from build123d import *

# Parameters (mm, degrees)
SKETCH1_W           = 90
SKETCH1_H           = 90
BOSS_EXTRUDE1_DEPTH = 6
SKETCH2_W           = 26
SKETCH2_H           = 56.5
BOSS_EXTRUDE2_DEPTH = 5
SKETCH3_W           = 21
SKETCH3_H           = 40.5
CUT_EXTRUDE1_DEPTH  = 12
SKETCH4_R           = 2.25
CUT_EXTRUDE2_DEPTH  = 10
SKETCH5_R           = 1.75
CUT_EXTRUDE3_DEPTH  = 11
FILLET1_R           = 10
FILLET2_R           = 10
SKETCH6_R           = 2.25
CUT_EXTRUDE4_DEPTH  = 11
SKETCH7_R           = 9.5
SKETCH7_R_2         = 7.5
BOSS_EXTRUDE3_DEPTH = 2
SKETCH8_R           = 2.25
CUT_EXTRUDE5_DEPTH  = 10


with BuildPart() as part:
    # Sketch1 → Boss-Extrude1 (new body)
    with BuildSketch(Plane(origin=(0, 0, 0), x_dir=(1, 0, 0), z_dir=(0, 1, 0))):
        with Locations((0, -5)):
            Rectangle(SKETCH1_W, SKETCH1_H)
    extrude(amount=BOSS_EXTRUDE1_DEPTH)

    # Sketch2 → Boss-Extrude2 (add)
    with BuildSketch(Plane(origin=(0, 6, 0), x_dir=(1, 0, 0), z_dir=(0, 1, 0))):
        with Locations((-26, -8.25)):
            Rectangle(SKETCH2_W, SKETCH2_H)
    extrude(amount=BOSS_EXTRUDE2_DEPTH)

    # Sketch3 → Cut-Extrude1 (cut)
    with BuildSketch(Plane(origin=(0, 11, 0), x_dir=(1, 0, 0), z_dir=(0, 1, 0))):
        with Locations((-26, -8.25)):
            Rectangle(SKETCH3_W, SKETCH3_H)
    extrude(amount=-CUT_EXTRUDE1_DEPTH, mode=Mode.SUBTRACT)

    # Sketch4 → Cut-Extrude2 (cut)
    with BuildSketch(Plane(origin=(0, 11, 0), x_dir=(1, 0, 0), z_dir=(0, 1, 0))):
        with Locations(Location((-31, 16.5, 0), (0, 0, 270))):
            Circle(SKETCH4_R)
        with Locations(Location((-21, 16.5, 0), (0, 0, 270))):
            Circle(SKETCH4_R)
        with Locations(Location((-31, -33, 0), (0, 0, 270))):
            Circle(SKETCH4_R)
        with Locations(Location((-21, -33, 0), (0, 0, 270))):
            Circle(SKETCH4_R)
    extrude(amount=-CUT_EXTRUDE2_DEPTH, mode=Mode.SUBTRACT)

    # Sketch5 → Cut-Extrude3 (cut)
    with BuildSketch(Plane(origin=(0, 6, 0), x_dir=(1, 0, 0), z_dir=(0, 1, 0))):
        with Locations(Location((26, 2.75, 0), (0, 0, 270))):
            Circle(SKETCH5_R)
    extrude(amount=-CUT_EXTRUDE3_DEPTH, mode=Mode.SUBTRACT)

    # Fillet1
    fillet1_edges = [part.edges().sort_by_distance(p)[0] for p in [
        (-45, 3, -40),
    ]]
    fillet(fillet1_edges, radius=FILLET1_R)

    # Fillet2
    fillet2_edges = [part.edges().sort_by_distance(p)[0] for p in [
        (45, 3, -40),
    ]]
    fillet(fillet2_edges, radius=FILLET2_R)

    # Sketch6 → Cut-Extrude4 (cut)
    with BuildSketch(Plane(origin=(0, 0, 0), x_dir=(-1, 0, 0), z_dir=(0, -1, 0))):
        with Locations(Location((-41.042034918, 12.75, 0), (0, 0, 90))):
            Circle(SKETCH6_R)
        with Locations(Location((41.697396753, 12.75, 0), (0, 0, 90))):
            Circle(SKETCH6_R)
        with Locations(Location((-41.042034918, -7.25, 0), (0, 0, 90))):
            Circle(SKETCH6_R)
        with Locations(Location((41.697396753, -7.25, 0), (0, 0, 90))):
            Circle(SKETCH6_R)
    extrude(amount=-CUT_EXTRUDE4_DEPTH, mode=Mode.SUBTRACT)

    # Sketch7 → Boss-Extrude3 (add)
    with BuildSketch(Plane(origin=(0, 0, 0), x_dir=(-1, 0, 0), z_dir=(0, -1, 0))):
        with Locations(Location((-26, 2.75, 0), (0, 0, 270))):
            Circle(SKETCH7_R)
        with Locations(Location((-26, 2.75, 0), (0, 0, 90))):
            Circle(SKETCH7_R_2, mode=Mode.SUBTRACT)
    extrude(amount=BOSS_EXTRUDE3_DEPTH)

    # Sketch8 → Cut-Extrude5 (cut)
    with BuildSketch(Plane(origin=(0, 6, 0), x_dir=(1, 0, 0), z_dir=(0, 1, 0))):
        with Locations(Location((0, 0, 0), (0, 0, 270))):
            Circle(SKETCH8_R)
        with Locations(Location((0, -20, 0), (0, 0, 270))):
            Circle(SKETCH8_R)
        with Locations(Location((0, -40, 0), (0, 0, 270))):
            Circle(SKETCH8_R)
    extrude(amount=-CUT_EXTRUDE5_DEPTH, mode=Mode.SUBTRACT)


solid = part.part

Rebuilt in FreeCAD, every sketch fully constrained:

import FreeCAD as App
import Part
import Sketcher

V = App.Vector
Q = App.Units.Quantity


def edges_at(feature, points):
    """Names of the edges that pass closest to the given points."""
    edges = feature.Shape.Edges
    near = lambda p: min(range(len(edges)), key=lambda i: edges[i].distToShape(Part.Vertex(*p))[0])
    return sorted({f"Edge{near(p) + 1}" for p in points})


def add_polygon(sketch, points):
    """Adds a closed chain of lines whose ends are joined by coincident constraints."""
    first, n = sketch.GeometryCount, len(points)
    for a, b in zip(points, points[1:] + points[:1]):
        sketch.addGeometry(Part.LineSegment(App.Vector(*a, 0), App.Vector(*b, 0)), False)
    for i in range(n):
        sketch.addConstraint(Sketcher.Constraint("Coincident", first + i, 2, first + (i + 1) % n, 1))

doc = App.newDocument("Part")
params = doc.addObject("Spreadsheet::Sheet", "Params")
for row, (alias, value) in enumerate([
    ("sketch1_width", "90 mm"),
    ("pad1_length", "6 mm"),
    ("sketch2_width", "26 mm"),
    ("sketch2_height", "56.5 mm"),
    ("pad2_length", "5 mm"),
    ("sketch3_width", "21 mm"),
    ("sketch3_height", "40.5 mm"),
    ("pocket1_length", "12 mm"),
    ("sketch4_diameter", "4.5 mm"),
    ("pocket2_length", "10 mm"),
    ("sketch5_diameter", "3.5 mm"),
    ("pocket3_length", "11 mm"),
    ("fillet_radius", "10 mm"),
    ("fillet2_radius", "10 mm"),
    ("sketch6_diameter", "4.5 mm"),
    ("pocket4_length", "11 mm"),
    ("sketch7_diameter", "19 mm"),
    ("sketch7_diameter2", "15 mm"),
    ("pad3_length", "2 mm"),
    ("sketch8_diameter", "4.5 mm"),
    ("pocket5_length", "10 mm"),
], start=1):
    params.set(f"A{row}", alias)
    params.set(f"B{row}", "=" + value)
    params.setAlias(f"B{row}", alias)

body = doc.addObject("PartDesign::Body", "Body")

# Sketch on XZ plane
sketch1 = body.newObject("Sketcher::SketchObject", "Sketch")
sketch1.AttachmentSupport = (doc.getObject("XZ_Plane"), [""])
sketch1.MapMode = "FlatFace"
add_polygon(sketch1, [(-45, -40), (-45, 50), (45, 50), (45, -40)])  # lines 0-3
sketch1.addConstraint(Sketcher.Constraint("Vertical", 0))
sketch1.addConstraint(Sketcher.Constraint("Horizontal", 1))
sketch1.addConstraint(Sketcher.Constraint("Vertical", 2))
sketch1.addConstraint(Sketcher.Constraint("Horizontal", 3))
sketch1.addConstraint(Sketcher.Constraint("Equal", 3, 0))
sketch1.addConstraint(Sketcher.Constraint("DistanceX", 1, 1, 1, 2, Q("90 mm")))
sketch1.addConstraint(Sketcher.Constraint("DistanceX", 0, 2, -1, 1, Q("45 mm")))
sketch1.addConstraint(Sketcher.Constraint("DistanceY", -1, 1, 0, 2, Q("50 mm")))
sketch1.setExpression("Constraints[9]", "Params.sketch1_width")
pad1 = body.newObject("PartDesign::Pad", "Pad")
pad1.Profile = sketch1
pad1.setExpression("Length", "Params.pad1_length")
pad1.Reversed = True

# Sketch on XZ plane
sketch2 = body.newObject("Sketcher::SketchObject", "Sketch001")
sketch2.AttachmentSupport = (doc.getObject("XZ_Plane"), [""])
sketch2.MapMode = "FlatFace"
sketch2.AttachmentOffset = App.Placement(V(0, 0, -6), App.Rotation())
add_polygon(sketch2, [(-39, -20), (-39, 36), (-13, 36), (-13, -20)])  # lines 0-3
sketch2.addConstraint(Sketcher.Constraint("Vertical", 0))
sketch2.addConstraint(Sketcher.Constraint("Horizontal", 1))
sketch2.addConstraint(Sketcher.Constraint("Vertical", 2))
sketch2.addConstraint(Sketcher.Constraint("Horizontal", 3))
sketch2.addConstraint(Sketcher.Constraint("DistanceX", 1, 1, 1, 2, Q("26 mm")))
sketch2.addConstraint(Sketcher.Constraint("DistanceY", 0, 1, 0, 2, Q("56.5 mm")))
sketch2.addConstraint(Sketcher.Constraint("DistanceX", 0, 2, -1, 1, Q("39 mm")))
sketch2.addConstraint(Sketcher.Constraint("DistanceY", 2, 2, -1, 1, Q("20 mm")))
sketch2.setExpression("Constraints[8]", "Params.sketch2_width")
sketch2.setExpression("Constraints[9]", "Params.sketch2_height")
pad2 = body.newObject("PartDesign::Pad", "Pad001")
pad2.Profile = sketch2
pad2.setExpression("Length", "Params.pad2_length")
pad2.Reversed = True

# Sketch on XZ plane
sketch3 = body.newObject("Sketcher::SketchObject", "Sketch002")
sketch3.AttachmentSupport = (doc.getObject("XZ_Plane"), [""])
sketch3.MapMode = "FlatFace"
sketch3.AttachmentOffset = App.Placement(V(0, 0, -11), App.Rotation())
add_polygon(sketch3, [(-36, -12), (-36, 28), (-16, 28), (-16, -12)])  # lines 0-3
sketch3.addConstraint(Sketcher.Constraint("Vertical", 0))
sketch3.addConstraint(Sketcher.Constraint("Horizontal", 1))
sketch3.addConstraint(Sketcher.Constraint("Vertical", 2))
sketch3.addConstraint(Sketcher.Constraint("Horizontal", 3))
sketch3.addConstraint(Sketcher.Constraint("DistanceX", 1, 1, 1, 2, Q("21 mm")))
sketch3.addConstraint(Sketcher.Constraint("DistanceY", 0, 1, 0, 2, Q("40.5 mm")))
sketch3.addConstraint(Sketcher.Constraint("DistanceY", 2, 2, -1, 1, Q("12 mm")))
sketch3.addConstraint(Sketcher.Constraint("DistanceX", 0, 2, -1, 1, Q("36.5 mm")))
sketch3.setExpression("Constraints[8]", "Params.sketch3_width")
sketch3.setExpression("Constraints[9]", "Params.sketch3_height")
pocket1 = body.newObject("PartDesign::Pocket", "Pocket")
pocket1.Profile = sketch3
pocket1.setExpression("Length", "Params.pocket1_length")
pocket1.Reversed = True

# Sketch on XZ plane
sketch4 = body.newObject("Sketcher::SketchObject", "Sketch003")
sketch4.AttachmentSupport = (doc.getObject("XZ_Plane"), [""])
sketch4.MapMode = "FlatFace"
sketch4.AttachmentOffset = App.Placement(V(0, 0, -11), App.Rotation())
sketch4.addGeometry(Part.Circle(V(-31, -16.5, 0), V(0, 0, 1), 2.2), False)
sketch4.addGeometry(Part.Circle(V(-21, -16.5, 0), V(0, 0, 1), 2.2), False)
sketch4.addGeometry(Part.Circle(V(-31, 33, 0), V(0, 0, 1), 2.2), False)
sketch4.addGeometry(Part.Circle(V(-21, 33, 0), V(0, 0, 1), 2.2), False)
sketch4.addConstraint(Sketcher.Constraint("Equal", 0, 1))
sketch4.addConstraint(Sketcher.Constraint("Equal", 1, 2))
sketch4.addConstraint(Sketcher.Constraint("Equal", 2, 3))
sketch4.addConstraint(Sketcher.Constraint("Horizontal", 0, 3, 1, 3))
sketch4.addConstraint(Sketcher.Constraint("Horizontal", 2, 3, 3, 3))
sketch4.addConstraint(Sketcher.Constraint("Vertical", 0, 3, 2, 3))
sketch4.addConstraint(Sketcher.Constraint("Vertical", 1, 3, 3, 3))
sketch4.addConstraint(Sketcher.Constraint("Diameter", 0, Q("4.5 mm")))
sketch4.addConstraint(Sketcher.Constraint("DistanceX", 0, 3, -1, 1, Q("31 mm")))
sketch4.addConstraint(Sketcher.Constraint("DistanceX", 1, 3, -1, 1, Q("21 mm")))
sketch4.addConstraint(Sketcher.Constraint("DistanceY", -1, 1, 2, 3, Q("33 mm")))
sketch4.addConstraint(Sketcher.Constraint("DistanceY", 0, 3, -1, 1, Q("16.5 mm")))
sketch4.setExpression("Constraints[7]", "Params.sketch4_diameter")
pocket2 = body.newObject("PartDesign::Pocket", "Pocket001")
pocket2.Profile = sketch4
pocket2.setExpression("Length", "Params.pocket2_length")
pocket2.Reversed = True

# Sketch on XZ plane
sketch5 = body.newObject("Sketcher::SketchObject", "Sketch004")
sketch5.AttachmentSupport = (doc.getObject("XZ_Plane"), [""])
sketch5.MapMode = "FlatFace"
sketch5.AttachmentOffset = App.Placement(V(0, 0, -6), App.Rotation())
sketch5.addGeometry(Part.Circle(V(26, -2.8, 0), V(0, 0, 1), 1.8), False)
sketch5.addConstraint(Sketcher.Constraint("Diameter", 0, Q("3.5 mm")))
sketch5.addConstraint(Sketcher.Constraint("DistanceX", -1, 1, 0, 3, Q("26 mm")))
sketch5.addConstraint(Sketcher.Constraint("DistanceY", 0, 3, -1, 1, Q("2.75 mm")))
sketch5.setExpression("Constraints[0]", "Params.sketch5_diameter")
pocket3 = body.newObject("PartDesign::Pocket", "Pocket002")
pocket3.Profile = sketch5
pocket3.setExpression("Length", "Params.pocket3_length")
pocket3.Reversed = True
doc.recompute()

fillet = body.newObject("PartDesign::Fillet", "Fillet")
fillet.Base = (pocket3, edges_at(pocket3, [(-45, 3, -40)]))
fillet.setExpression("Radius", "Params.fillet_radius")
doc.recompute()

fillet2 = body.newObject("PartDesign::Fillet", "Fillet001")
fillet2.Base = (fillet, edges_at(fillet, [(45, 3, -40)]))
fillet2.setExpression("Radius", "Params.fillet2_radius")

# Sketch on XZ plane
sketch6 = body.newObject("Sketcher::SketchObject", "Sketch005")
sketch6.AttachmentSupport = (doc.getObject("XZ_Plane"), [""])
sketch6.MapMode = "FlatFace"
sketch6.addGeometry(Part.Circle(V(41, -12.8, 0), V(0, 0, 1), 2.2), False)
sketch6.addGeometry(Part.Circle(V(-41.7, -12.8, 0), V(0, 0, 1), 2.2), False)
sketch6.addGeometry(Part.Circle(V(41, 7.2, 0), V(0, 0, 1), 2.2), False)
sketch6.addGeometry(Part.Circle(V(-41.7, 7.2, 0), V(0, 0, 1), 2.2), False)
sketch6.addConstraint(Sketcher.Constraint("Equal", 0, 1))
sketch6.addConstraint(Sketcher.Constraint("Equal", 1, 2))
sketch6.addConstraint(Sketcher.Constraint("Equal", 2, 3))
sketch6.addConstraint(Sketcher.Constraint("Horizontal", 0, 3, 1, 3))
sketch6.addConstraint(Sketcher.Constraint("Horizontal", 2, 3, 3, 3))
sketch6.addConstraint(Sketcher.Constraint("Vertical", 0, 3, 2, 3))
sketch6.addConstraint(Sketcher.Constraint("Vertical", 1, 3, 3, 3))
sketch6.addConstraint(Sketcher.Constraint("Diameter", 0, Q("4.5 mm")))
sketch6.addConstraint(Sketcher.Constraint("DistanceY", 0, 3, 2, 3, Q("20 mm")))
sketch6.addConstraint(Sketcher.Constraint("DistanceY", 0, 3, -1, 1, Q("12.75 mm")))
sketch6.addConstraint(Sketcher.Constraint("DistanceX", 1, 3, 0, 3, Q("82.739432 mm")))
sketch6.addConstraint(Sketcher.Constraint("DistanceX", -1, 1, 0, 3, Q("41.042035 mm")))
sketch6.setExpression("Constraints[7]", "Params.sketch6_diameter")
pocket4 = body.newObject("PartDesign::Pocket", "Pocket003")
pocket4.Profile = sketch6
pocket4.setExpression("Length", "Params.pocket4_length")

# Sketch on XZ plane
sketch7 = body.newObject("Sketcher::SketchObject", "Sketch006")
sketch7.AttachmentSupport = (doc.getObject("XZ_Plane"), [""])
sketch7.MapMode = "FlatFace"
sketch7.addGeometry(Part.Circle(V(26, -3, 0), V(0, 0, 1), 10), False)
sketch7.addGeometry(Part.Circle(V(26, -3, 0), V(0, 0, 1), 8), False)
sketch7.addConstraint(Sketcher.Constraint("Coincident", 1, 3, 0, 3))
sketch7.addConstraint(Sketcher.Constraint("Diameter", 0, Q("19 mm")))
sketch7.addConstraint(Sketcher.Constraint("Diameter", 1, Q("15 mm")))
sketch7.addConstraint(Sketcher.Constraint("DistanceX", -1, 1, 0, 3, Q("26 mm")))
sketch7.addConstraint(Sketcher.Constraint("DistanceY", 0, 3, -1, 1, Q("2.75 mm")))
sketch7.setExpression("Constraints[1]", "Params.sketch7_diameter")
sketch7.setExpression("Constraints[2]", "Params.sketch7_diameter2")
pad3 = body.newObject("PartDesign::Pad", "Pad002")
pad3.Profile = sketch7
pad3.setExpression("Length", "Params.pad3_length")

# Sketch on XZ plane
sketch8 = body.newObject("Sketcher::SketchObject", "Sketch007")
sketch8.AttachmentSupport = (doc.getObject("XZ_Plane"), [""])
sketch8.MapMode = "FlatFace"
sketch8.AttachmentOffset = App.Placement(V(0, 0, -6), App.Rotation())
sketch8.addGeometry(Part.Circle(V(0, 0, 0), V(0, 0, 1), 2.2), False)
sketch8.addGeometry(Part.Circle(V(0, 20, 0), V(0, 0, 1), 2.2), False)
sketch8.addGeometry(Part.Circle(V(0, 40, 0), V(0, 0, 1), 2.2), False)
sketch8.addConstraint(Sketcher.Constraint("Coincident", 0, 3, -1, 1))
sketch8.addConstraint(Sketcher.Constraint("Equal", 0, 1))
sketch8.addConstraint(Sketcher.Constraint("Equal", 1, 2))
sketch8.addConstraint(Sketcher.Constraint("PointOnObject", 1, 3, -2))
sketch8.addConstraint(Sketcher.Constraint("PointOnObject", 2, 3, -2))
sketch8.addConstraint(Sketcher.Constraint("Diameter", 0, Q("4.5 mm")))
sketch8.addConstraint(Sketcher.Constraint("DistanceY", -1, 1, 1, 3, Q("20 mm")))
sketch8.addConstraint(Sketcher.Constraint("DistanceY", -1, 1, 2, 3, Q("40 mm")))
sketch8.setExpression("Constraints[5]", "Params.sketch8_diameter")
pocket5 = body.newObject("PartDesign::Pocket", "Pocket004")
pocket5.Profile = sketch8
pocket5.setExpression("Length", "Params.pocket5_length")
pocket5.Reversed = True

doc.recompute()
